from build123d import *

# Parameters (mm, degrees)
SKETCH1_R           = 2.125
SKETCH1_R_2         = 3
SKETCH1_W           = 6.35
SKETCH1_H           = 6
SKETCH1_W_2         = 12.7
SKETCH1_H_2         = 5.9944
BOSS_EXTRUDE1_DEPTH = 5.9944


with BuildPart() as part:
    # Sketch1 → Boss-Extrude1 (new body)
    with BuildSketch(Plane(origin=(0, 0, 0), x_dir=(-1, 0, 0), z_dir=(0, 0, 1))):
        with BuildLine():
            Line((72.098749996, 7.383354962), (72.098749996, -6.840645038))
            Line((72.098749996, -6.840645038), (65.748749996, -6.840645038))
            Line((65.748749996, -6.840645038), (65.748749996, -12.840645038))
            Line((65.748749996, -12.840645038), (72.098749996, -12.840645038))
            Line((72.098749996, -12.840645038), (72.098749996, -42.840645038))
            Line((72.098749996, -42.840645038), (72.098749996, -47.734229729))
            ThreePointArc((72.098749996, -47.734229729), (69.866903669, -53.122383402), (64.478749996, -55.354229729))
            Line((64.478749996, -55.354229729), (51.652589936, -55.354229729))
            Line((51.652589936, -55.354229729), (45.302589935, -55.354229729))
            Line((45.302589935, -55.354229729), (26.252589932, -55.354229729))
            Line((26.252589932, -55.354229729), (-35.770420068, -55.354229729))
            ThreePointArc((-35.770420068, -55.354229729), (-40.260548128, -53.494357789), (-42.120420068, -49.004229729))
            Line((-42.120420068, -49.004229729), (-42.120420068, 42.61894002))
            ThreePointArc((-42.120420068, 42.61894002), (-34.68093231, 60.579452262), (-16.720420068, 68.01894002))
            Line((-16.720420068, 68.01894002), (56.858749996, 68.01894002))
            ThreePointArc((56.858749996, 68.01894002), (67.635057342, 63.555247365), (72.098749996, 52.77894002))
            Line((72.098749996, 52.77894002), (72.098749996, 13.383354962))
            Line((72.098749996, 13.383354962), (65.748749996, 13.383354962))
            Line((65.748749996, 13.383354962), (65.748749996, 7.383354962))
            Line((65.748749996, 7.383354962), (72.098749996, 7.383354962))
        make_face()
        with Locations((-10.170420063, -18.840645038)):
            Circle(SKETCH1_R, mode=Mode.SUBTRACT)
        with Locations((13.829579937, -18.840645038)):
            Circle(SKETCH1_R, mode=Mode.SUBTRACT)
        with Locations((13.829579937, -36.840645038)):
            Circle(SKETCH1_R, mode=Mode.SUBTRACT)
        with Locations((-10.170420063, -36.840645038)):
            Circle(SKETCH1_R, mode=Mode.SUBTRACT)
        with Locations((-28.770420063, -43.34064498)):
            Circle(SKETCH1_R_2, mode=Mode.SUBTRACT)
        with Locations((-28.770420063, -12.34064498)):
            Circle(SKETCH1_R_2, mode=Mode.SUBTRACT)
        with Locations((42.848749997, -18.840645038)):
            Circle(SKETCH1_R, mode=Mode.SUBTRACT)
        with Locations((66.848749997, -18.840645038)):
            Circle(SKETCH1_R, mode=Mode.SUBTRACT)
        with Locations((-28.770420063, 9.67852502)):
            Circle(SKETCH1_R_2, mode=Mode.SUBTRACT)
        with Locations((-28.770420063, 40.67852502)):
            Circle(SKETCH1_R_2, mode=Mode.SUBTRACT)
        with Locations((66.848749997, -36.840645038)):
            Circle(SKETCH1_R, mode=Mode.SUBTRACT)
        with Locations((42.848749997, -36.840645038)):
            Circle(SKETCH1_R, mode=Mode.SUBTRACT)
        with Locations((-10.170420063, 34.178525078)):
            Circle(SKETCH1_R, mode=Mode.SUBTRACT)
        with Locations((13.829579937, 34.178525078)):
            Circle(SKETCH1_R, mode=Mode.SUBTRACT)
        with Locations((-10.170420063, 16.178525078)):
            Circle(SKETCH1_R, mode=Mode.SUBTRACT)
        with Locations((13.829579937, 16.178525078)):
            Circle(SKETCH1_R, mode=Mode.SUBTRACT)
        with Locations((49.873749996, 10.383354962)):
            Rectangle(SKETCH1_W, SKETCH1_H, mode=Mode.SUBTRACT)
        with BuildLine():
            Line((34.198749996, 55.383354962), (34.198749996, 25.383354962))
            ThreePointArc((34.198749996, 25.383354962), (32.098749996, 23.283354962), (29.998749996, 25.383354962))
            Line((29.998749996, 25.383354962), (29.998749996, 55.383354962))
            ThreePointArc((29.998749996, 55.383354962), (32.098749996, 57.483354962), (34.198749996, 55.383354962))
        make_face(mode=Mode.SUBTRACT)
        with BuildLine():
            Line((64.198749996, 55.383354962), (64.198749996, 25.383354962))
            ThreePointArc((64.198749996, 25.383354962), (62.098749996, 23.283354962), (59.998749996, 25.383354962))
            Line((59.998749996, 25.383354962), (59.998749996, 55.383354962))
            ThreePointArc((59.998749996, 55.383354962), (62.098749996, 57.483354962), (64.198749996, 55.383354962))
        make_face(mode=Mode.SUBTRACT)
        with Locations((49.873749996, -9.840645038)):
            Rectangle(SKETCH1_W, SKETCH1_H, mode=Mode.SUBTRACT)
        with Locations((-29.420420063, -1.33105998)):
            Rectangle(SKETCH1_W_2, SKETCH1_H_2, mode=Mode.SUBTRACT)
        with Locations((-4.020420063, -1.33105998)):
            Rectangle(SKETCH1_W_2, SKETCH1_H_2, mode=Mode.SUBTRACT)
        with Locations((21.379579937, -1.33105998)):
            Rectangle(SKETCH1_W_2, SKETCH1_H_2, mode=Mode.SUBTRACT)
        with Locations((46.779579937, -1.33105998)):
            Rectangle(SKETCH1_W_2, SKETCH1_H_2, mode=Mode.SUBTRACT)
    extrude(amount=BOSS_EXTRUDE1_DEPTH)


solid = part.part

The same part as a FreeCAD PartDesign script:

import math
import FreeCAD as App
import Part
import Sketcher

V = App.Vector
Q = App.Units.Quantity


def add_polygon(sketch, points):
    """Adds a closed chain of lines whose ends are joined by coincident constraints."""
    first, n = sketch.GeometryCount, len(points)
    for a, b in zip(points, points[1:] + points[:1]):
        sketch.addGeometry(Part.LineSegment(App.Vector(*a, 0), App.Vector(*b, 0)), False)
    for i in range(n):
        sketch.addConstraint(Sketcher.Constraint("Coincident", first + i, 2, first + (i + 1) % n, 1))

doc = App.newDocument("Part")
body = doc.addObject("PartDesign::Body", "Body")

# Sketch on XY plane
sketch1 = body.newObject("Sketcher::SketchObject", "Sketch")
sketch1.AttachmentSupport = (doc.getObject("XY_Plane"), [""])
sketch1.MapMode = "FlatFace"
sketch1.addGeometry(Part.LineSegment(V(-72.1, 6.8, 0), V(-72.1, -7.4, 0)), False)  # 0
sketch1.addGeometry(Part.LineSegment(V(-72.1, -7.4, 0), V(-65.7, -7.4, 0)), False)  # 1
sketch1.addGeometry(Part.LineSegment(V(-65.7, -7.4, 0), V(-65.7, -13.4, 0)), False)  # 2
sketch1.addGeometry(Part.LineSegment(V(-65.7, -13.4, 0), V(-72.1, -13.4, 0)), False)  # 3
sketch1.addGeometry(Part.LineSegment(V(-72.1, -13.4, 0), V(-72.1, -52.8, 0)), False)  # 4
sketch1.addGeometry(Part.ArcOfCircle(Part.Circle(V(-56.9, -52.8, 0), V(0, 0, 1), 15.2), math.radians(180), math.radians(270)), False)  # 5
sketch1.addGeometry(Part.LineSegment(V(-56.9, -68, 0), V(16.7, -68, 0)), False)  # 6
sketch1.addGeometry(Part.ArcOfCircle(Part.Circle(V(16.7, -42.6, 0), V(0, 0, 1), 25.4), math.radians(-90), math.radians(0)), False)  # 7
sketch1.addGeometry(Part.LineSegment(V(42.1, -42.6, 0), V(42.1, 49, 0)), False)  # 8
sketch1.addGeometry(Part.ArcOfCircle(Part.Circle(V(35.8, 49, 0), V(0, 0, 1), 6.4), math.radians(0), math.radians(90)), False)  # 9
sketch1.addGeometry(Part.LineSegment(V(35.8, 55.4, 0), V(-64.5, 55.4, 0)), False)  # 10
sketch1.addGeometry(Part.ArcOfCircle(Part.Circle(V(-64.5, 47.7, 0), V(0, 0, 1), 7.6), math.radians(90), math.radians(180)), False)  # 11
sketch1.addGeometry(Part.LineSegment(V(-72.1, 47.7, 0), V(-72.1, 12.8, 0)), False)  # 12
sketch1.addGeometry(Part.LineSegment(V(-72.1, 12.8, 0), V(-65.7, 12.8, 0)), False)  # 13
sketch1.addGeometry(Part.LineSegment(V(-65.7, 12.8, 0), V(-65.7, 6.8, 0)), False)  # 14
sketch1.addGeometry(Part.LineSegment(V(-65.7, 6.8, 0), V(-72.1, 6.8, 0)), False)  # 15
sketch1.addGeometry(Part.Circle(V(-66.8, 36.8, 0), V(0, 0, 1), 2.1), False)  # 16
sketch1.addGeometry(Part.Circle(V(-42.8, 36.8, 0), V(0, 0, 1), 2.1), False)  # 17
sketch1.addGeometry(Part.Circle(V(-66.8, 18.8, 0), V(0, 0, 1), 2.1), False)  # 18
sketch1.addGeometry(Part.Circle(V(-42.8, 18.8, 0), V(0, 0, 1), 2.1), False)  # 19
add_polygon(sketch1, [(-46.7, 12.8), (-46.7, 6.8), (-53, 6.8), (-53, 12.8)])  # lines 20-23
add_polygon(sketch1, [(-40.4, 4.3), (-40.4, -1.7), (-53.1, -1.7), (-53.1, 4.3)])  # lines 24-27
add_polygon(sketch1, [(-15, 4.3), (-15, -1.7), (-27.7, -1.7), (-27.7, 4.3)])  # lines 28-31
sketch1.addGeometry(Part.Circle(V(-13.8, 36.8, 0), V(0, 0, 1), 2.1), False)  # 32
sketch1.addGeometry(Part.Circle(V(10.2, 36.8, 0), V(0, 0, 1), 2.1), False)  # 33
sketch1.addGeometry(Part.Circle(V(28.8, 43.3, 0), V(0, 0, 1), 3), False)  # 34
sketch1.addGeometry(Part.Circle(V(-13.8, 18.8, 0), V(0, 0, 1), 2.1), False)  # 35
add_polygon(sketch1, [(10.4, 4.3), (10.4, -1.7), (-2.3, -1.7), (-2.3, 4.3)])  # lines 36-39
sketch1.addGeometry(Part.Circle(V(10.2, 18.8, 0), V(0, 0, 1), 2.1), False)  # 40
sketch1.addGeometry(Part.Circle(V(28.8, 12.3, 0), V(0, 0, 1), 3), False)  # 41
add_polygon(sketch1, [(35.8, 4.3), (35.8, -1.7), (23.1, -1.7), (23.1, 4.3)])  # lines 42-45
add_polygon(sketch1, [(-46.7, -7.4), (-46.7, -13.4), (-53, -13.4), (-53, -7.4)])  # lines 46-49
sketch1.addGeometry(Part.LineSegment(V(-64.2, -55.4, 0), V(-64.2, -25.4, 0)), False)  # 50
sketch1.addGeometry(Part.ArcOfCircle(Part.Circle(V(-62.1, -25.4, 0), V(0, 0, 1), 2.1), math.radians(0), math.radians(180)), False)  # 51
sketch1.addGeometry(Part.LineSegment(V(-60, -25.4, 0), V(-60, -55.4, 0)), False)  # 52
sketch1.addGeometry(Part.ArcOfCircle(Part.Circle(V(-62.1, -55.4, 0), V(0, 0, 1), 2.1), math.radians(180), math.radians(360)), False)  # 53
sketch1.addGeometry(Part.LineSegment(V(-34.2, -55.4, 0), V(-34.2, -25.4, 0)), False)  # 54
sketch1.addGeometry(Part.ArcOfCircle(Part.Circle(V(-32.1, -25.4, 0), V(0, 0, 1), 2.1), math.radians(0), math.radians(180)), False)  # 55
sketch1.addGeometry(Part.LineSegment(V(-30, -25.4, 0), V(-30, -55.4, 0)), False)  # 56
sketch1.addGeometry(Part.ArcOfCircle(Part.Circle(V(-32.1, -55.4, 0), V(0, 0, 1), 2.1), math.radians(180), math.radians(360)), False)  # 57
sketch1.addGeometry(Part.Circle(V(-13.8, -16.2, 0), V(0, 0, 1), 2.1), False)  # 58
sketch1.addGeometry(Part.Circle(V(10.2, -16.2, 0), V(0, 0, 1), 2.1), False)  # 59
sketch1.addGeometry(Part.Circle(V(28.8, -9.7, 0), V(0, 0, 1), 3), False)  # 60
sketch1.addGeometry(Part.Circle(V(-13.8, -34.2, 0), V(0, 0, 1), 2.1), False)  # 61
sketch1.addGeometry(Part.Circle(V(10.2, -34.2, 0), V(0, 0, 1), 2.1), False)  # 62
sketch1.addGeometry(Part.Circle(V(28.8, -40.7, 0), V(0, 0, 1), 3), False)  # 63
sketch1.addConstraint([
    Sketcher.Constraint("Coincident", 0, 2, 1, 1),
    Sketcher.Constraint("Coincident", 1, 2, 2, 1),
    Sketcher.Constraint("Coincident", 2, 2, 3, 1),
    Sketcher.Constraint("Coincident", 3, 2, 4, 1),
    Sketcher.Constraint("Tangent", 4, 2, 5, 1),
    Sketcher.Constraint("Tangent", 5, 2, 6, 1),
    Sketcher.Constraint("Tangent", 6, 2, 7, 1),
    Sketcher.Constraint("Tangent", 7, 2, 8, 1),
    Sketcher.Constraint("Tangent", 8, 2, 9, 1),
    Sketcher.Constraint("Tangent", 9, 2, 10, 1),
    Sketcher.Constraint("Tangent", 10, 2, 11, 1),
    Sketcher.Constraint("Tangent", 11, 2, 12, 1),
    Sketcher.Constraint("Coincident", 12, 2, 13, 1),
    Sketcher.Constraint("Coincident", 13, 2, 14, 1),
    Sketcher.Constraint("Coincident", 14, 2, 15, 1),
    Sketcher.Constraint("Coincident", 15, 2, 0, 1),
    Sketcher.Constraint("Tangent", 50, 2, 51, 2),
    Sketcher.Constraint("Tangent", 51, 1, 52, 1),
    Sketcher.Constraint("Tangent", 52, 2, 53, 2),
    Sketcher.Constraint("Tangent", 53, 1, 50, 1),
    Sketcher.Constraint("Tangent", 54, 2, 55, 2),
    Sketcher.Constraint("Tangent", 55, 1, 56, 1),
    Sketcher.Constraint("Tangent", 56, 2, 57, 2),
    Sketcher.Constraint("Tangent", 57, 1, 54, 1),
    Sketcher.Constraint("Vertical", 0),
    Sketcher.Constraint("Horizontal", 1),
    Sketcher.Constraint("Vertical", 2),
    Sketcher.Constraint("Horizontal", 3),
    Sketcher.Constraint("Vertical", 4),
    Sketcher.Constraint("Horizontal", 6),
    Sketcher.Constraint("Vertical", 8),
    Sketcher.Constraint("Horizontal", 10),
    Sketcher.Constraint("Vertical", 12),
    Sketcher.Constraint("Horizontal", 13),
    Sketcher.Constraint("Vertical", 14),
    Sketcher.Constraint("Horizontal", 15),
    Sketcher.Constraint("Vertical", 20),
    Sketcher.Constraint("Horizontal", 21),
    Sketcher.Constraint("Vertical", 22),
    Sketcher.Constraint("Horizontal", 23),
    Sketcher.Constraint("Vertical", 24),
    Sketcher.Constraint("Horizontal", 25),
    Sketcher.Constraint("Vertical", 26),
    Sketcher.Constraint("Horizontal", 27),
    Sketcher.Constraint("Vertical", 28),
    Sketcher.Constraint("Horizontal", 29),
    Sketcher.Constraint("Vertical", 30),
    Sketcher.Constraint("Horizontal", 31),
    Sketcher.Constraint("Vertical", 36),
    Sketcher.Constraint("Horizontal", 37),
    Sketcher.Constraint("Vertical", 38),
    Sketcher.Constraint("Horizontal", 39),
    Sketcher.Constraint("Vertical", 42),
    Sketcher.Constraint("Horizontal", 43),
    Sketcher.Constraint("Vertical", 44),
    Sketcher.Constraint("Horizontal", 45),
    Sketcher.Constraint("Vertical", 46),
    Sketcher.Constraint("Horizontal", 47),
    Sketcher.Constraint("Vertical", 48),
    Sketcher.Constraint("Horizontal", 49),
    Sketcher.Constraint("Vertical", 50),
    Sketcher.Constraint("Vertical", 52),
    Sketcher.Constraint("Vertical", 54),
    Sketcher.Constraint("Vertical", 56),
    Sketcher.Constraint("Equal", 16, 17),
    Sketcher.Constraint("Equal", 17, 18),
    Sketcher.Constraint("Equal", 18, 19),
    Sketcher.Constraint("Equal", 19, 32),
    Sketcher.Constraint("Equal", 32, 33),
    Sketcher.Constraint("Equal", 33, 35),
    Sketcher.Constraint("Equal", 35, 40),
    Sketcher.Constraint("Equal", 34, 41),
    Sketcher.Constraint("Equal", 53, 55),
    Sketcher.Constraint("Equal", 40, 58),
    Sketcher.Constraint("Equal", 58, 59),
    Sketcher.Constraint("Equal", 41, 60),
    Sketcher.Constraint("Equal", 59, 61),
    Sketcher.Constraint("Equal", 61, 62),
    Sketcher.Constraint("Equal", 60, 63),
    Sketcher.Constraint("Horizontal", 16, 3, 17, 3),
    Sketcher.Constraint("Horizontal", 18, 3, 19, 3),
    Sketcher.Constraint("Horizontal", 17, 3, 32, 3),
    Sketcher.Constraint("Horizontal", 32, 3, 33, 3),
    Sketcher.Constraint("Horizontal", 19, 3, 35, 3),
    Sketcher.Constraint("Horizontal", 35, 3, 40, 3),
    Sketcher.Constraint("Horizontal", 51, 3, 55, 3),
    Sketcher.Constraint("Horizontal", 53, 3, 57, 3),
    Sketcher.Constraint("Horizontal", 58, 3, 59, 3),
    Sketcher.Constraint("Horizontal", 61, 3, 62, 3),
    Sketcher.Constraint("Horizontal", 15, 2, 20, 2),
    Sketcher.Constraint("Horizontal", 13, 2, 22, 2),
    Sketcher.Constraint("Horizontal", 25, 2, 28, 2),
    Sketcher.Constraint("Horizontal", 27, 2, 30, 2),
    Sketcher.Constraint("Horizontal", 29, 2, 36, 2),
    Sketcher.Constraint("Horizontal", 31, 2, 38, 2),
    Sketcher.Constraint("Horizontal", 37, 2, 42, 2),
    Sketcher.Constraint("Horizontal", 39, 2, 44, 2),
    Sketcher.Constraint("Horizontal", 3, 2, 46, 2),
    Sketcher.Constraint("Horizontal", 1, 2, 48, 2),
    Sketcher.Constraint("Vertical", 16, 3, 18, 3),
    Sketcher.Constraint("Vertical", 17, 3, 19, 3),
    Sketcher.Constraint("Vertical", 32, 3, 35, 3),
    Sketcher.Constraint("Vertical", 33, 3, 40, 3),
    Sketcher.Constraint("Vertical", 34, 3, 41, 3),
    Sketcher.Constraint("Vertical", 35, 3, 58, 3),
    Sketcher.Constraint("Vertical", 40, 3, 59, 3),
    Sketcher.Constraint("Vertical", 41, 3, 60, 3),
    Sketcher.Constraint("Vertical", 58, 3, 61, 3),
    Sketcher.Constraint("Vertical", 59, 3, 62, 3),
    Sketcher.Constraint("Vertical", 60, 3, 63, 3),
    Sketcher.Constraint("Vertical", 0, 2, 3, 2),
    Sketcher.Constraint("Vertical", 4, 2, 11, 2),
    Sketcher.Constraint("Vertical", 2, 2, 13, 2),
    Sketcher.Constraint("Vertical", 9, 2, 42, 2),
    Sketcher.Constraint("Vertical", 23, 2, 46, 2),
    Sketcher.Constraint("Vertical", 22, 2, 47, 2),
    Sketcher.Constraint("Equal", 15, 21),
    Sketcher.Constraint("Equal", 27, 29),
    Sketcher.Constraint("Equal", 31, 37),
    Sketcher.Constraint("Equal", 39, 43),
    Sketcher.Constraint("Equal", 2, 14),
    Sketcher.Constraint("Radius", 7, Q("1 in")),
    Sketcher.Constraint("Radius", 5, Q("0.6 in")),
    Sketcher.Constraint("Radius", 11, Q("0.3 in")),
    Sketcher.Constraint("Radius", 9, Q("0.25 in")),
    Sketcher.Constraint("DistanceX", 25, 2, 25, 1, Q("0.5 in")),
    Sketcher.Constraint("DistanceX", 1, 1, 1, 2, Q("0.25 in")),
    Sketcher.Constraint("DistanceY", 0, 2, 0, 1, Q("0.56 in")),
    Sketcher.Constraint("Diameter", 16, 4.25),
    Sketcher.Constraint("Diameter", 34, 6.0),
    Sketcher.Constraint("DistanceY", 24, 2, 24, 1, Q("0.236 in")),
    Sketcher.Constraint("Radius", 51, 2.1),
    Sketcher.Constraint("DistanceY", 2, 2, 2, 1, 6.0),
    Sketcher.Constraint("DistanceY", 50, 1, 50, 2, 30.0),
    Sketcher.Constraint("DistanceX", 6, 1, 6, 2, 73.57917),
    Sketcher.Constraint("DistanceY", 8, 1, 8, 2, 91.62317),
    Sketcher.Constraint("DistanceY", 4, 2, 4, 1, 39.395585),
    Sketcher.Constraint("DistanceX", 5, 3, -1, 1, 56.85875),
    Sketcher.Constraint("DistanceY", 5, 3, -1, 1, 52.77894),
    Sketcher.Constraint("DistanceX", 16, 3, -1, 1, 66.84875),
    Sketcher.Constraint("DistanceX", 17, 3, -1, 1, 42.84875),
    Sketcher.Constraint("DistanceX", 32, 3, -1, 1, 13.82958),
    Sketcher.Constraint("DistanceX", -1, 1, 33, 3, 10.17042),
    Sketcher.Constraint("DistanceX", -1, 1, 34, 3, 28.77042),
    Sketcher.Constraint("DistanceX", 51, 3, -1, 1, 62.09875),
    Sketcher.Constraint("DistanceX", 55, 3, -1, 1, 32.09875),
    Sketcher.Constraint("DistanceX", 20, 2, -1, 1, 46.69875),
    Sketcher.Constraint("DistanceX", 24, 2, -1, 1, 40.42958),
    Sketcher.Constraint("DistanceY", 24, 2, -1, 1, 1.66614),
    Sketcher.Constraint("DistanceX", 28, 2, -1, 1, 15.02958),
    Sketcher.Constraint("DistanceX", -1, 1, 36, 2, 10.37042),
    Sketcher.Constraint("DistanceY", -1, 1, 16, 3, 36.840645),
    Sketcher.Constraint("DistanceY", -1, 1, 18, 3, 18.840645),
    Sketcher.Constraint("DistanceY", -1, 1, 34, 3, 43.340645),
    Sketcher.Constraint("DistanceY", -1, 1, 41, 3, 12.340645),
    Sketcher.Constraint("DistanceY", 51, 3, -1, 1, 25.383355),
    Sketcher.Constraint("DistanceY", 58, 3, -1, 1, 16.178525),
    Sketcher.Constraint("DistanceY", 60, 3, -1, 1, 9.678525),
    Sketcher.Constraint("DistanceY", 61, 3, -1, 1, 34.178525),
    Sketcher.Constraint("DistanceY", 63, 3, -1, 1, 40.678525),
])
pad1 = body.newObject("PartDesign::Pad", "Pad")
pad1.Profile = sketch1
pad1.Length = Q("0.236 in")

doc.recompute()
